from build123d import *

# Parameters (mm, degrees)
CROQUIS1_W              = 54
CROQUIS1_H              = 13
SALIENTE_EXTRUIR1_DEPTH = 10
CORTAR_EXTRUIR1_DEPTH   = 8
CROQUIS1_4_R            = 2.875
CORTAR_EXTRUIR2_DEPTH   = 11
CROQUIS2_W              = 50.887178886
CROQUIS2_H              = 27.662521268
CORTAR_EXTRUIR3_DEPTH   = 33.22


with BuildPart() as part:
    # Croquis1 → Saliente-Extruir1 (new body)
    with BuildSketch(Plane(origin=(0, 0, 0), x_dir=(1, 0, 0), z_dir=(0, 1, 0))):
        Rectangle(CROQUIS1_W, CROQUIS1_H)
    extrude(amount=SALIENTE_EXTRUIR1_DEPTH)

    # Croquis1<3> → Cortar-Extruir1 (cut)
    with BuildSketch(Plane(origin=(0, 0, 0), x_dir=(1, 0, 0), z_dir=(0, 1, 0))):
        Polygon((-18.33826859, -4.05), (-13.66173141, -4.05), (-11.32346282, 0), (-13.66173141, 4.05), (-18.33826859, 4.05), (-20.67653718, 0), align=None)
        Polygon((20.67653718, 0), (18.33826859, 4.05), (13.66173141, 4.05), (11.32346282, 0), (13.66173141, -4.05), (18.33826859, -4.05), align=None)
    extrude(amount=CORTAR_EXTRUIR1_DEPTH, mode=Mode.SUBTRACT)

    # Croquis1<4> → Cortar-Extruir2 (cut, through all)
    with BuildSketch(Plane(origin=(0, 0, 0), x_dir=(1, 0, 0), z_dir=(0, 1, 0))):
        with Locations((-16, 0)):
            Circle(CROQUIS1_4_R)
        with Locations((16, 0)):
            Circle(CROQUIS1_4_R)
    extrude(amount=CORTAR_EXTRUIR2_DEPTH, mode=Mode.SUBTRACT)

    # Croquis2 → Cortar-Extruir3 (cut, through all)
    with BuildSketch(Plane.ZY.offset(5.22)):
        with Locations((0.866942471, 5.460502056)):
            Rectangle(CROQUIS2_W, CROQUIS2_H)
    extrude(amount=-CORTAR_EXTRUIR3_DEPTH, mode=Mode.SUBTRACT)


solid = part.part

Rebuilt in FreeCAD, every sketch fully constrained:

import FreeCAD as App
import Part
import Sketcher

V = App.Vector
Q = App.Units.Quantity


def add_polygon(sketch, points):
    """Adds a closed chain of lines whose ends are joined by coincident constraints."""
    first, n = sketch.GeometryCount, len(points)
    for a, b in zip(points, points[1:] + points[:1]):
        sketch.addGeometry(Part.LineSegment(App.Vector(*a, 0), App.Vector(*b, 0)), False)
    for i in range(n):
        sketch.addConstraint(Sketcher.Constraint("Coincident", first + i, 2, first + (i + 1) % n, 1))

doc = App.newDocument("Part")
body = doc.addObject("PartDesign::Body", "Body")

# Sketch on XZ plane
sketch1 = body.newObject("Sketcher::SketchObject", "Sketch")
sketch1.AttachmentSupport = (doc.getObject("XZ_Plane"), [""])
sketch1.MapMode = "FlatFace"
add_polygon(sketch1, [(-27, -6), (-27, 6), (27, 6), (27, -6)])  # lines 0-3
sketch1.addConstraint(Sketcher.Constraint("Vertical", 0))
sketch1.addConstraint(Sketcher.Constraint("Horizontal", 1))
sketch1.addConstraint(Sketcher.Constraint("Vertical", 2))
sketch1.addConstraint(Sketcher.Constraint("Horizontal", 3))
sketch1.addConstraint(Sketcher.Constraint("Symmetric", 0, 2, 2, 2, -1, 1))
sketch1.addConstraint(Sketcher.Constraint("DistanceX", 1, 1, 1, 2, Q("54 mm")))
sketch1.addConstraint(Sketcher.Constraint("DistanceY", 0, 1, 0, 2, Q("13 mm")))
pad1 = body.newObject("PartDesign::Pad", "Pad")
pad1.Profile = sketch1
pad1.Length = 10
pad1.Reversed = True

# Sketch on XZ plane
sketch2 = body.newObject("Sketcher::SketchObject", "Sketch001")
sketch2.AttachmentSupport = (doc.getObject("XZ_Plane"), [""])
sketch2.MapMode = "FlatFace"
add_polygon(sketch2, [(-18.3, 4), (-13.7, 4), (-11.3, 0), (-13.7, -4), (-18.3, -4), (-20.7, 0)])  # lines 0-5
add_polygon(sketch2, [(20.7, 0), (18.3, -4), (13.7, -4), (11.3, 0), (13.7, 4), (18.3, 4)])  # lines 6-11
sketch2.addConstraint(Sketcher.Constraint("Horizontal", 0))
sketch2.addConstraint(Sketcher.Constraint("Horizontal", 3))
sketch2.addConstraint(Sketcher.Constraint("Horizontal", 7))
sketch2.addConstraint(Sketcher.Constraint("Horizontal", 10))
sketch2.addConstraint(Sketcher.Constraint("Symmetric", 5, 2, 6, 2, -1, 1))
sketch2.addConstraint(Sketcher.Constraint("Symmetric", 1, 2, 8, 2, -1, 1))
sketch2.addConstraint(Sketcher.Constraint("Symmetric", 2, 2, 9, 2, -1, 1))
sketch2.addConstraint(Sketcher.Constraint("Symmetric", 4, 2, 11, 2, -1, 1))
sketch2.addConstraint(Sketcher.Constraint("Symmetric", 3, 2, 6, 2, -2))
sketch2.addConstraint(Sketcher.Constraint("PointOnObject", 1, 2, -1))
sketch2.addConstraint(Sketcher.Constraint("PointOnObject", 4, 2, -1))
sketch2.addConstraint(Sketcher.Constraint("Parallel", 1, 4))
sketch2.addConstraint(Sketcher.Constraint("Parallel", 2, 5))
sketch2.addConstraint(Sketcher.Constraint("Parallel", 4, 8))
sketch2.addConstraint(Sketcher.Constraint("Parallel", 8, 11))
sketch2.addConstraint(Sketcher.Constraint("Angle", 1, Q("-60 deg")))
sketch2.addConstraint(Sketcher.Constraint("DistanceX", 2, 2, 6, 2, Q("32 mm")))
sketch2.addConstraint(Sketcher.Constraint("DistanceY", 2, 2, 0, 2, Q("8.1 mm")))
sketch2.addConstraint(Sketcher.Constraint("DistanceX", 0, 1, 0, 2, Q("4.676537 mm")))
pocket1 = body.newObject("PartDesign::Pocket", "Pocket")
pocket1.Profile = sketch2
pocket1.Length = 8

# Sketch on XZ plane
sketch3 = body.newObject("Sketcher::SketchObject", "Sketch002")
sketch3.AttachmentSupport = (doc.getObject("XZ_Plane"), [""])
sketch3.MapMode = "FlatFace"
sketch3.addGeometry(Part.Circle(V(-16, 0, 0), V(0, 0, 1), 2.9), False)
sketch3.addGeometry(Part.Circle(V(16, 0, 0), V(0, 0, 1), 2.9), False)
sketch3.addConstraint(Sketcher.Constraint("Equal", 0, 1))
sketch3.addConstraint(Sketcher.Constraint("Symmetric", 0, 3, 1, 3, -1, 1))
sketch3.addConstraint(Sketcher.Constraint("PointOnObject", 0, 3, -1))
sketch3.addConstraint(Sketcher.Constraint("Diameter", 0, Q("5.75 mm")))
sketch3.addConstraint(Sketcher.Constraint("DistanceX", 0, 3, -1, 1, Q("16 mm")))
pocket2 = body.newObject("PartDesign::Pocket", "Pocket001")
pocket2.Profile = sketch3
pocket2.Type = "ThroughAll"

# Sketch on YZ plane
sketch4 = body.newObject("Sketcher::SketchObject", "Sketch003")
sketch4.AttachmentSupport = (doc.getObject("YZ_Plane"), [""])
sketch4.MapMode = "FlatFace"
sketch4.AttachmentOffset = App.Placement(V(0, 0, -5.22), App.Rotation())
add_polygon(sketch4, [(19, -25), (-8, -25), (-8, 26), (19, 26)])  # lines 0-3
sketch4.addConstraint(Sketcher.Constraint("Horizontal", 0))
sketch4.addConstraint(Sketcher.Constraint("Vertical", 1))
sketch4.addConstraint(Sketcher.Constraint("Horizontal", 2))
sketch4.addConstraint(Sketcher.Constraint("Vertical", 3))
sketch4.addConstraint(Sketcher.Constraint("DistanceX", 0, 2, 0, 1, Q("27.662521 mm")))
sketch4.addConstraint(Sketcher.Constraint("DistanceY", 1, 1, 1, 2, Q("50.887179 mm")))
sketch4.addConstraint(Sketcher.Constraint("DistanceX", 0, 2, -1, 1, Q("8.370759 mm")))
sketch4.addConstraint(Sketcher.Constraint("DistanceY", -1, 1, 1, 2, Q("26.310532 mm")))
pocket3 = body.newObject("PartDesign::Pocket", "Pocket002")
pocket3.Profile = sketch4
pocket3.Type = "ThroughAll"
pocket3.Reversed = True

doc.recompute()
